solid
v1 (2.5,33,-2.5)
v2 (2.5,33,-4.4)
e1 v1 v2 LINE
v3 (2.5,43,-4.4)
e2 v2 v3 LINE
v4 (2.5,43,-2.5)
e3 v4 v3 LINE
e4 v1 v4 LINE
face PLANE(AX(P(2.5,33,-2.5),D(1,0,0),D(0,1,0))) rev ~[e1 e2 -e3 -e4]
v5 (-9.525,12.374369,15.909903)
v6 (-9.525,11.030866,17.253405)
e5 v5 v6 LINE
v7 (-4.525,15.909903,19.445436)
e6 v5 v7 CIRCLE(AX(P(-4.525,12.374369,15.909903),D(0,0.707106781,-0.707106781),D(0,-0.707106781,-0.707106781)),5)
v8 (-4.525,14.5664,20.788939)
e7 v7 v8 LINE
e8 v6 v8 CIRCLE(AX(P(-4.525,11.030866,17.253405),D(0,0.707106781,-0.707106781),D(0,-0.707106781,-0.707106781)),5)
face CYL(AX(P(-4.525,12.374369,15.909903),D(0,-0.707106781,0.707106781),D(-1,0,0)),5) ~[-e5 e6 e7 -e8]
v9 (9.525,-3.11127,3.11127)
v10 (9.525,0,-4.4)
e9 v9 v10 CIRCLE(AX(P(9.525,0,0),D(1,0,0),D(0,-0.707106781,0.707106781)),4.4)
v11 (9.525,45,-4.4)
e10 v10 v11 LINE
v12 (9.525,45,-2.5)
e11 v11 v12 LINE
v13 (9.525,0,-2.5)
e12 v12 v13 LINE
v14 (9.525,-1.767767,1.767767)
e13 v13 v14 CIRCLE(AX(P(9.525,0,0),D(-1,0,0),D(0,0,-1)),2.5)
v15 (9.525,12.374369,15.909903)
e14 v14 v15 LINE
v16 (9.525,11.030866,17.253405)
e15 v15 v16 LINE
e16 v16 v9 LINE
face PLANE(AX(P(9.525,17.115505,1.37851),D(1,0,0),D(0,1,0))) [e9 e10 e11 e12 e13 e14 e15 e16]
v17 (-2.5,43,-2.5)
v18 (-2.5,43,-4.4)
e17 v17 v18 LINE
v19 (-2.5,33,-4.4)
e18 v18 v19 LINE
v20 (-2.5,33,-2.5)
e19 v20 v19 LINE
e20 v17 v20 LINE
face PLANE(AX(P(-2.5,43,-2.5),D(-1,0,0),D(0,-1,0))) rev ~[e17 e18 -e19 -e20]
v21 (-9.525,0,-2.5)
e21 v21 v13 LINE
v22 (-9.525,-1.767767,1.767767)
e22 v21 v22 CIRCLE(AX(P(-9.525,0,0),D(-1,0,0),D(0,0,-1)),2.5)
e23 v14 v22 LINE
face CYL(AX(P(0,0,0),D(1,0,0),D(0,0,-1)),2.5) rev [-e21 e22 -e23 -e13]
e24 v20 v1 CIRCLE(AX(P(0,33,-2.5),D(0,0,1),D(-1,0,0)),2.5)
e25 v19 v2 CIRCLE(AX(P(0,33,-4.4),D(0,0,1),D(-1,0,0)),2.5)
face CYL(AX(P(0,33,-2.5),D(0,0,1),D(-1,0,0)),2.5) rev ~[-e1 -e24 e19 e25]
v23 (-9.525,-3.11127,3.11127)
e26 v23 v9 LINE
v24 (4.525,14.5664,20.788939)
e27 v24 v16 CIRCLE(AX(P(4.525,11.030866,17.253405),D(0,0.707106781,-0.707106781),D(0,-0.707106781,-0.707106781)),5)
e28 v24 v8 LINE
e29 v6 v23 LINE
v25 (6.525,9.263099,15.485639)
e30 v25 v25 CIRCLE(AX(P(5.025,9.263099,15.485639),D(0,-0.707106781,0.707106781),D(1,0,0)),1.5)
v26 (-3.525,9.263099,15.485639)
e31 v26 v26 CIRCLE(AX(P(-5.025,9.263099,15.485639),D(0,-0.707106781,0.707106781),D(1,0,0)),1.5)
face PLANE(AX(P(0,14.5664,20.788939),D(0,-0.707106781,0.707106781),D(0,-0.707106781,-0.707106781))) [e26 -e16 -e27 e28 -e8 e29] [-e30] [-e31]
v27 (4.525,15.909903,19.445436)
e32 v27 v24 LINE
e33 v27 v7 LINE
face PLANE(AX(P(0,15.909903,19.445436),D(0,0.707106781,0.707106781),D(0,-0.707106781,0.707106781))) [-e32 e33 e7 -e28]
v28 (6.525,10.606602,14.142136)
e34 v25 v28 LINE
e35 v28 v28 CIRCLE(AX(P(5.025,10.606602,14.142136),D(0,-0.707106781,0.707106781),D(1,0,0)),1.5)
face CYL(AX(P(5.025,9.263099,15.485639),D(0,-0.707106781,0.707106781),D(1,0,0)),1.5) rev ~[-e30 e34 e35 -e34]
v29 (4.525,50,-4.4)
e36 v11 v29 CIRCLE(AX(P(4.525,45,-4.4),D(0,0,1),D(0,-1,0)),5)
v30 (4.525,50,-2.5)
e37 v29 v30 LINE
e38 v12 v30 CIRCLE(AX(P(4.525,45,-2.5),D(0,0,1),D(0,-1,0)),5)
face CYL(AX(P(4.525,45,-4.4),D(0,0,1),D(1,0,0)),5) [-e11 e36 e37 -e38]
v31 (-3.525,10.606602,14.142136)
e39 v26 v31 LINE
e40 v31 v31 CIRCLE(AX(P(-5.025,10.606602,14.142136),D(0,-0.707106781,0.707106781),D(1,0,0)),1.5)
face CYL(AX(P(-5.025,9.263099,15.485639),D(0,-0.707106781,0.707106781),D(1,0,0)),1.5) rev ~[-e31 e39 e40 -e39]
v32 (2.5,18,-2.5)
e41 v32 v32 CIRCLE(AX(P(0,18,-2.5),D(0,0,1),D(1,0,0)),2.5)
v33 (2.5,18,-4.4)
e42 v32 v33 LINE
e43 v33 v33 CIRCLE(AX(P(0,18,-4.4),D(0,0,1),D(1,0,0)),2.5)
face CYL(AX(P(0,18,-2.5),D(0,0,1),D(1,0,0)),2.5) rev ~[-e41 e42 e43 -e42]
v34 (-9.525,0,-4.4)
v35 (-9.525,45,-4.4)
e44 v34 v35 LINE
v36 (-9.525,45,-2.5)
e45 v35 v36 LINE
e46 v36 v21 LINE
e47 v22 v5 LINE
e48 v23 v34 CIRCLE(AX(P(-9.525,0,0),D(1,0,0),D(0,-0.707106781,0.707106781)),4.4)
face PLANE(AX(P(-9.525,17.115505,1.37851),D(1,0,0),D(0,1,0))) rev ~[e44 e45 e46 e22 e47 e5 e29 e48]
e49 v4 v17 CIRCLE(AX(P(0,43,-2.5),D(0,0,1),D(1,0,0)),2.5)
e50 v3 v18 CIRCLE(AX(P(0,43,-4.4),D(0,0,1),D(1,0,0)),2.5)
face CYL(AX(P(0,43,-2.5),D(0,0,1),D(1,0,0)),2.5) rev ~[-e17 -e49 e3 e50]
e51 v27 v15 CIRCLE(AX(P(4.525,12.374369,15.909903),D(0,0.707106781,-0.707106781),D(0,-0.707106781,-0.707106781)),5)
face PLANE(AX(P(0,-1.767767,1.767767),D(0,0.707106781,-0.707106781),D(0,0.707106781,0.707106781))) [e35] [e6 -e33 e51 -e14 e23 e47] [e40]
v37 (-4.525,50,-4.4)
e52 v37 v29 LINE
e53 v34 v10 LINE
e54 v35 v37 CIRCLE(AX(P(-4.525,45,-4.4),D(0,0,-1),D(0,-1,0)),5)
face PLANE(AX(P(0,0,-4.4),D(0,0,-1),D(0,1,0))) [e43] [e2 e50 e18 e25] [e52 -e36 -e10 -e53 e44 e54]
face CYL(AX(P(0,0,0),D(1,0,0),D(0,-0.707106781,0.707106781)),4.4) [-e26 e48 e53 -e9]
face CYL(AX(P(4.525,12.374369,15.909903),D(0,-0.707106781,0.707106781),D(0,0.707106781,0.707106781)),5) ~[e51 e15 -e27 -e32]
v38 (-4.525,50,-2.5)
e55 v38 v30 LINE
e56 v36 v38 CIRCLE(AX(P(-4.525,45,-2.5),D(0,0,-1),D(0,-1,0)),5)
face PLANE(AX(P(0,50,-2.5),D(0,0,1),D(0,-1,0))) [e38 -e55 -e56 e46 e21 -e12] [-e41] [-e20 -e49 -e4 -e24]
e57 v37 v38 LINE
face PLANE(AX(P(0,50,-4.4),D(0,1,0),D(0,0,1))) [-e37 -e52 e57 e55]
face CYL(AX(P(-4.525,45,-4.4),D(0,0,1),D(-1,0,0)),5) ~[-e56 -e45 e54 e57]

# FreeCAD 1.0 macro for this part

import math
import FreeCAD as App
import Part
import Sketcher
Q = App.Units.Quantity


def edges_at(feature, points):
    """Names of the edges that pass closest to the given points."""
    edges = feature.Shape.Edges
    near = lambda p: min(range(len(edges)), key=lambda i: edges[i].distToShape(Part.Vertex(*p))[0])
    return sorted({f"Edge{near(p) + 1}" for p in points})

doc = App.newDocument("Part")
params = doc.addObject("Spreadsheet::Sheet", "Params")
for row, (alias, value) in enumerate([
    ("sketch1_radius", "4.4 mm"),
    ("sketch1_radius2", "2.5 mm"),
    ("sketch1_width", "50 mm"),
    ("sketch1_length", "25 mm"),
    ("pad1_length", "19.05 mm"),
    ("sketch2_diameter", "3 mm"),
    ("pocket1_length", "1.9 mm"),
    ("sketch3_diameter", "5 mm"),
    ("sketch3_height", "10 mm"),
    ("fillet_radius", "5 mm"),
], start=1):
    params.set(f"A{row}", alias)
    params.set(f"B{row}", "=" + value)
    params.setAlias(f"B{row}", alias)

body = doc.addObject("PartDesign::Body", "Body")

sketch1 = body.newObject("Sketcher::SketchObject", "Sketch")
sketch1.AttachmentSupport = (doc.getObject("YZ_Plane"), [""])
sketch1.MapMode = "FlatFace"
sketch1.addGeometry([
    Part.LineSegment(App.Vector(14.5664, 20.788939, 0), App.Vector(-3.11127, 3.11127, 0)),
    Part.ArcOfCircle(Part.Circle(App.Vector(0, 0, 0), App.Vector(0, 0, 1), 4.4), math.radians(135), math.radians(270)),
    Part.LineSegment(App.Vector(0, -4.4, 0), App.Vector(50, -4.4, 0)),
    Part.LineSegment(App.Vector(50, -4.4, 0), App.Vector(50, -2.5, 0)),
    Part.LineSegment(App.Vector(50, -2.5, 0), App.Vector(0, -2.5, 0)),
    Part.ArcOfCircle(Part.Circle(App.Vector(0, 0, 0), App.Vector(0, 0, 1), 2.5), math.radians(135), math.radians(270)),
    Part.LineSegment(App.Vector(-1.767767, 1.767767, 0), App.Vector(15.909903, 19.445436, 0)),
    Part.LineSegment(App.Vector(15.909903, 19.445436, 0), App.Vector(14.5664, 20.788939, 0)),
], False)
sketch1.addConstraint([
    Sketcher.Constraint("Tangent", 0, 2, 1, 1),
    Sketcher.Constraint("Tangent", 1, 2, 2, 1),
    Sketcher.Constraint("Coincident", 2, 2, 3, 1),
    Sketcher.Constraint("Coincident", 3, 2, 4, 1),
    Sketcher.Constraint("Tangent", 4, 2, 5, 2),
    Sketcher.Constraint("Tangent", 5, 1, 6, 1),
    Sketcher.Constraint("Coincident", 6, 2, 7, 1),
    Sketcher.Constraint("Coincident", 7, 2, 0, 1),
    Sketcher.Constraint("Horizontal", 2),
    Sketcher.Constraint("Vertical", 3),
    Sketcher.Constraint("Horizontal", 4),
    Sketcher.Constraint("Coincident", 1, 3, -1, 1),
    Sketcher.Constraint("Coincident", 5, 3, -1, 1),
    Sketcher.Constraint("Parallel", 0, 6),
    Sketcher.Constraint("Perpendicular", 6, 7),
    Sketcher.Constraint("Radius", 1, 4.4),
    Sketcher.Constraint("Radius", 5, 2.5),
    Sketcher.Constraint("DistanceX", 2, 1, 2, 2, 50.0),
    Sketcher.Constraint("Angle", 0, Q("-135 deg")),
    Sketcher.Constraint("Distance", 0, 25.0),
])
sketch1.setExpression("Constraints[15]", "Params.sketch1_radius")
sketch1.setExpression("Constraints[16]", "Params.sketch1_radius2")
sketch1.setExpression("Constraints[17]", "Params.sketch1_width")
sketch1.setExpression("Constraints[19]", "Params.sketch1_length")
pad1 = body.newObject("PartDesign::Pad", "Pad")
pad1.Profile = sketch1
pad1.setExpression("Length", "Params.pad1_length")
pad1.Midplane = True

sketch2 = body.newObject("Sketcher::SketchObject", "Sketch001")
sketch2.Placement = App.Placement(App.Vector(0, -3.11127, 3.11127), App.Rotation(App.Vector(1, 0, 0), App.Vector(0, 0.707106781, 0.707106781), App.Vector(0, -0.707106781, 0.707106781), "ZXY"))
sketch2.addGeometry([
    Part.Circle(App.Vector(-5.025, 17.5, 0), App.Vector(0, 0, 1), 1.5),
    Part.Circle(App.Vector(5.025, 17.5, 0), App.Vector(0, 0, 1), 1.5),
], False)
sketch2.addConstraint([
    Sketcher.Constraint("Equal", 0, 1),
    Sketcher.Constraint("Symmetric", 0, 3, 1, 3, -2),
    Sketcher.Constraint("Diameter", 0, 3.0),
    Sketcher.Constraint("DistanceY", -1, 1, 0, 3, 17.5),
    Sketcher.Constraint("DistanceX", 0, 3, 1, 3, 10.05),
])
sketch2.setExpression("Constraints[2]", "Params.sketch2_diameter")
pocket1 = body.newObject("PartDesign::Pocket", "Pocket")
pocket1.Profile = sketch2
pocket1.setExpression("Length", "Params.pocket1_length")

sketch3 = body.newObject("Sketcher::SketchObject", "Sketch002")
sketch3.AttachmentSupport = (doc.getObject("XY_Plane"), [""])
sketch3.MapMode = "FlatFace"
sketch3.AttachmentOffset = App.Placement(App.Vector(0, 0, -2.5), App.Rotation())
sketch3.addGeometry([
    Part.Circle(App.Vector(0, 18, 0), App.Vector(0, 0, 1), 2.5),
    Part.ArcOfCircle(Part.Circle(App.Vector(0, 33, 0), App.Vector(0, 0, 1), 2.5), math.radians(180), math.radians(360)),
    Part.LineSegment(App.Vector(2.5, 33, 0), App.Vector(2.5, 43, 0)),
    Part.ArcOfCircle(Part.Circle(App.Vector(0, 43, 0), App.Vector(0, 0, 1), 2.5), math.radians(0), math.radians(180)),
    Part.LineSegment(App.Vector(-2.5, 43, 0), App.Vector(-2.5, 33, 0)),
], False)
sketch3.addConstraint([
    Sketcher.Constraint("Tangent", 1, 2, 2, 1),
    Sketcher.Constraint("Tangent", 2, 2, 3, 1),
    Sketcher.Constraint("Tangent", 3, 2, 4, 1),
    Sketcher.Constraint("Tangent", 4, 2, 1, 1),
    Sketcher.Constraint("Vertical", 2),
    Sketcher.Constraint("Vertical", 4),
    Sketcher.Constraint("Equal", 0, 1),
    Sketcher.Constraint("PointOnObject", 0, 3, -2),
    Sketcher.Constraint("PointOnObject", 1, 3, -2),
    Sketcher.Constraint("Diameter", 0, 5.0),
    Sketcher.Constraint("DistanceY", 2, 1, 2, 2, 10.0),
    Sketcher.Constraint("DistanceY", -1, 1, 0, 3, 18.0),
    Sketcher.Constraint("DistanceY", -1, 1, 1, 3, 33.0),
])
sketch3.setExpression("Constraints[9]", "Params.sketch3_diameter")
sketch3.setExpression("Constraints[10]", "Params.sketch3_height")
pocket2 = body.newObject("PartDesign::Pocket", "Pocket001")
pocket2.Profile = sketch3
pocket2.Type = "ThroughAll"
doc.recompute()

fillet = body.newObject("PartDesign::Fillet", "Fillet")
fillet.Base = (pocket2, edges_at(pocket2, [
    (9.525, 15.238, 20.117),
    (-9.525, 15.238, 20.117),
    (-9.525, 50, -3.45),
    (9.525, 50, -3.45),
]))
fillet.setExpression("Radius", "Params.fillet_radius")

doc.recompute()
